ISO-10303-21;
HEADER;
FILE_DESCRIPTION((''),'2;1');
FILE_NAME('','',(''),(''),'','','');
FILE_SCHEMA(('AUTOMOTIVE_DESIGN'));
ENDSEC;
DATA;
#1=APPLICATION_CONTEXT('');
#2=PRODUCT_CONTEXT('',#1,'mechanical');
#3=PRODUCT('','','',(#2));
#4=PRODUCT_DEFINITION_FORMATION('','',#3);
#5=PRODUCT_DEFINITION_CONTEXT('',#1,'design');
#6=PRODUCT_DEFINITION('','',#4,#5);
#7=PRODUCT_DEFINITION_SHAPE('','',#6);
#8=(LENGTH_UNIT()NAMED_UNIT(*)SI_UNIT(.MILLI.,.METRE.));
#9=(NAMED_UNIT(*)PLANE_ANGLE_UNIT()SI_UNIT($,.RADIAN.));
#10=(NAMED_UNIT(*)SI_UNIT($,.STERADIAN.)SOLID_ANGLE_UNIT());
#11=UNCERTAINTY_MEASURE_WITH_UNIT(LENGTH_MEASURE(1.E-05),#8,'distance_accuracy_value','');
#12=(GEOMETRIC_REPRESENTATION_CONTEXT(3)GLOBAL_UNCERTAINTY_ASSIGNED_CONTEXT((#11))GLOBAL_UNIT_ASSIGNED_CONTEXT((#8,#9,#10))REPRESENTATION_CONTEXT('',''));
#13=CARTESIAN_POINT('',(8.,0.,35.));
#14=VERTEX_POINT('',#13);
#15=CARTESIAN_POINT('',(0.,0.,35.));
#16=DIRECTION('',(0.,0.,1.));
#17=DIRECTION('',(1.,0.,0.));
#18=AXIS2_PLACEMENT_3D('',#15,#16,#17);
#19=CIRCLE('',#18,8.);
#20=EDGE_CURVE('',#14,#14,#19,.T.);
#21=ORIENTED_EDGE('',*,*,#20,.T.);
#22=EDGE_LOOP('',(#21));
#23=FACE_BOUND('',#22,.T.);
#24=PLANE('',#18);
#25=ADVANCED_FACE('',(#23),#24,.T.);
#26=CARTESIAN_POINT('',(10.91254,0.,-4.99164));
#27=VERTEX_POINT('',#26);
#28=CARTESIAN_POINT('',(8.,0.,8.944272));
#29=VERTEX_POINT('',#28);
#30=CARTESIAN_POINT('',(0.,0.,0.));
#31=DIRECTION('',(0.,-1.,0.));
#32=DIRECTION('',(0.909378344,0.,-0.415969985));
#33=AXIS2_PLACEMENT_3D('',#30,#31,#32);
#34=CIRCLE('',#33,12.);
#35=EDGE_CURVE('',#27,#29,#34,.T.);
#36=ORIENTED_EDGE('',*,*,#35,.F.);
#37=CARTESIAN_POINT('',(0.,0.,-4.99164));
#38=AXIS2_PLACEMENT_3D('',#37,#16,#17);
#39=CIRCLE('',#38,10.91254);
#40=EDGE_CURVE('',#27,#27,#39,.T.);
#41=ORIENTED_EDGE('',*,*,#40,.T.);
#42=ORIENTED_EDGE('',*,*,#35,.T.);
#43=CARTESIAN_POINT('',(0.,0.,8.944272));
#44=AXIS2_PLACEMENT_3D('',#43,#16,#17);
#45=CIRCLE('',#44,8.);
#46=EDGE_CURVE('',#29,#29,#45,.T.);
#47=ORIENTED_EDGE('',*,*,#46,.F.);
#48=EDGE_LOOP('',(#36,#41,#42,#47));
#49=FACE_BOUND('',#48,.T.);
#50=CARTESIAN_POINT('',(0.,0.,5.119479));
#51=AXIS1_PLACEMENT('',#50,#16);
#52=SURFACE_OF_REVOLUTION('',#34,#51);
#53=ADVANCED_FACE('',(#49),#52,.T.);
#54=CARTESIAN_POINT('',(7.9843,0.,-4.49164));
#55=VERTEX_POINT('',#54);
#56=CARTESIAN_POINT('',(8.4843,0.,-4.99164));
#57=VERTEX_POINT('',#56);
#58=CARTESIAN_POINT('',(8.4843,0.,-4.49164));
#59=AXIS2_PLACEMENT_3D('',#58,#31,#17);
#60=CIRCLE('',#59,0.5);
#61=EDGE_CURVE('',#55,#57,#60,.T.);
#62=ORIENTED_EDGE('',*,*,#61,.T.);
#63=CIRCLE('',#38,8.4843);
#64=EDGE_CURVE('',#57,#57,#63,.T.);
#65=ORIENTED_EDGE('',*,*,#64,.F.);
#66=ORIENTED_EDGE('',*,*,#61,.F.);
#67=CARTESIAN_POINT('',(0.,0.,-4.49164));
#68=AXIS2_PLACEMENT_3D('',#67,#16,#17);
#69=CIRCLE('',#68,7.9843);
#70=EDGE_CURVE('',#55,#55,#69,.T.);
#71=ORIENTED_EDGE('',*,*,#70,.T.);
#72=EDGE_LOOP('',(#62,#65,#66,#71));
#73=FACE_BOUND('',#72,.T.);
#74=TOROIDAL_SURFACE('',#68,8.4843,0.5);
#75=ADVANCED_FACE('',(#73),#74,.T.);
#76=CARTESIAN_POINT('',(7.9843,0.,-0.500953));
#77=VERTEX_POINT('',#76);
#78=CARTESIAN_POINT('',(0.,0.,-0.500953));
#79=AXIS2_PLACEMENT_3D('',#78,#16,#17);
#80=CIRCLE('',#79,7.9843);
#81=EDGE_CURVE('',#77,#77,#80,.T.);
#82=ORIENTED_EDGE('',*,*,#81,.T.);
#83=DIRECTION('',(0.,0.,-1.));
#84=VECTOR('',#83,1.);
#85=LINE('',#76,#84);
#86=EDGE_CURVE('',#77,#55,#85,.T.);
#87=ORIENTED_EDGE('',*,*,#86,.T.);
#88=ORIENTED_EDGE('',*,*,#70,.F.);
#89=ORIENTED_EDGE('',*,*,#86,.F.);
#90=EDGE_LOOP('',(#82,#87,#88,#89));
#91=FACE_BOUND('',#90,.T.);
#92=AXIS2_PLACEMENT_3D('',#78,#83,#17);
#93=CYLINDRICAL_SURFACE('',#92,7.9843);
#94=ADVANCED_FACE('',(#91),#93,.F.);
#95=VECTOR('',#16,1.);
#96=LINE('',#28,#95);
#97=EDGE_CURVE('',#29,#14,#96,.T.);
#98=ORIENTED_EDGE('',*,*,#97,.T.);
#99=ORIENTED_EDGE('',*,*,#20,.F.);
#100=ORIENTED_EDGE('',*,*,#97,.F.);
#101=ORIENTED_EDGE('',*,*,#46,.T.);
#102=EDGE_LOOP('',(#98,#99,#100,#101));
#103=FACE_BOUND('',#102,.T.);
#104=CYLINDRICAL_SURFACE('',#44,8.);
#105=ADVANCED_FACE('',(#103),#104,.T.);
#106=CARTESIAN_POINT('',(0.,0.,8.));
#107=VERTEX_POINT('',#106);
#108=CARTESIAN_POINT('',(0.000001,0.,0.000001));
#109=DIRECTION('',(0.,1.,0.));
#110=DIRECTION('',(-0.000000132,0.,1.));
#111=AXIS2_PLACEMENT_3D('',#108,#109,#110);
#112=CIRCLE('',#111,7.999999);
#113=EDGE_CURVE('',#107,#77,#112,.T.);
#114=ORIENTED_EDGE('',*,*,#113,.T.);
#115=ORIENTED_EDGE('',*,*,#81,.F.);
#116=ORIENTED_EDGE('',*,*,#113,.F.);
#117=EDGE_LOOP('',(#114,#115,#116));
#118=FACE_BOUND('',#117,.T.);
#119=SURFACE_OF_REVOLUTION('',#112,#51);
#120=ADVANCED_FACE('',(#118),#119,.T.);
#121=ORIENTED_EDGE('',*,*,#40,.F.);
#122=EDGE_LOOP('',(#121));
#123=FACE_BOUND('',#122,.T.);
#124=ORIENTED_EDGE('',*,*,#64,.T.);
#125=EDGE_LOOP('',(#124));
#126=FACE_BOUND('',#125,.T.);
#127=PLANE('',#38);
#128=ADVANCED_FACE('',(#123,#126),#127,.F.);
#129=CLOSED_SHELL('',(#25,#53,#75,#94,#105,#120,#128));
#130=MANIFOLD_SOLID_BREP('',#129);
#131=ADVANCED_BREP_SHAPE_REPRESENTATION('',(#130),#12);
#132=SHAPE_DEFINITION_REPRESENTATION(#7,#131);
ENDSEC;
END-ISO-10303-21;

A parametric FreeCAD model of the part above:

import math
import FreeCAD as App
import Part
import Sketcher
Q = App.Units.Quantity


def edges_at(feature, points):
    """Names of the edges that pass closest to the given points."""
    edges = feature.Shape.Edges
    near = lambda p: min(range(len(edges)), key=lambda i: edges[i].distToShape(Part.Vertex(*p))[0])
    return sorted({f"Edge{near(p) + 1}" for p in points})

doc = App.newDocument("Part")
body = doc.addObject("PartDesign::Body", "Body")

# Sketch on XZ plane
sketch1 = body.newObject("Sketcher::SketchObject", "Sketch")
sketch1.AttachmentSupport = (doc.getObject("XZ_Plane"), [""])
sketch1.MapMode = "FlatFace"
sketch1.addGeometry(Part.ArcOfCircle(Part.Circle(App.Vector(0.000001, 0.000001, 0), App.Vector(0, 0, 1), 7.999999), math.radians(-3.590168), math.radians(90.000008)), False)
sketch1.addGeometry(Part.LineSegment(App.Vector(7.9843, -0.500953, 0), App.Vector(7.9843, -4.99164, 0)), False)
sketch1.addGeometry(Part.LineSegment(App.Vector(7.9843, -4.99164, 0), App.Vector(10.91254, -4.99164, 0)), False)
sketch1.addGeometry(Part.ArcOfCircle(Part.Circle(App.Vector(0, 0, 0), App.Vector(0, 0, 1), 12), math.radians(-24.580416), math.radians(48.189684)), False)
sketch1.addGeometry(Part.LineSegment(App.Vector(8, 8.944272, 0), App.Vector(8, 35, 0)), False)
sketch1.addGeometry(Part.LineSegment(App.Vector(8, 35, 0), App.Vector(0, 35, 0)), False)
sketch1.addGeometry(Part.LineSegment(App.Vector(0, 35, 0), App.Vector(0, 8, 0)), False)
sketch1.addConstraint(Sketcher.Constraint("Coincident", 0, 1, 1, 1))
sketch1.addConstraint(Sketcher.Constraint("Coincident", 1, 2, 2, 1))
sketch1.addConstraint(Sketcher.Constraint("Coincident", 2, 2, 3, 1))
sketch1.addConstraint(Sketcher.Constraint("Coincident", 3, 2, 4, 1))
sketch1.addConstraint(Sketcher.Constraint("Coincident", 4, 2, 5, 1))
sketch1.addConstraint(Sketcher.Constraint("Coincident", 5, 2, 6, 1))
sketch1.addConstraint(Sketcher.Constraint("Coincident", 6, 2, 0, 2))
sketch1.addConstraint(Sketcher.Constraint("Vertical", 1))
sketch1.addConstraint(Sketcher.Constraint("Horizontal", 2))
sketch1.addConstraint(Sketcher.Constraint("Vertical", 4))
sketch1.addConstraint(Sketcher.Constraint("Horizontal", 5))
sketch1.addConstraint(Sketcher.Constraint("Vertical", 6))
sketch1.addConstraint(Sketcher.Constraint("Coincident", 0, 3, -1, 1))
sketch1.addConstraint(Sketcher.Constraint("Coincident", 3, 3, -1, 1))
sketch1.addConstraint(Sketcher.Constraint("PointOnObject", 5, 2, -2))
sketch1.addConstraint(Sketcher.Constraint("Radius", 0, Q("7.999999 mm")))
sketch1.addConstraint(Sketcher.Constraint("Radius", 3, Q("12 mm")))
sketch1.addConstraint(Sketcher.Constraint("DistanceX", 5, 2, 5, 1, Q("8 mm")))
sketch1.addConstraint(Sketcher.Constraint("DistanceY", 6, 2, 6, 1, Q("27 mm")))
sketch1.addConstraint(Sketcher.Constraint("DistanceX", 2, 1, 2, 2, Q("2.92824 mm")))
sketch1.addConstraint(Sketcher.Constraint("DistanceX", -1, 1, 0, 1, Q("7.9843 mm")))
revolution = body.newObject("PartDesign::Revolution", "Revolution")
revolution.Profile = sketch1
revolution.ReferenceAxis = (sketch1, ["V_Axis"])
revolution.Angle = 360
doc.recompute()

fillet = body.newObject("PartDesign::Fillet", "Fillet")
fillet.Base = (revolution, edges_at(revolution, [(-7.984, 0, -4.992)]))
fillet.Radius = 0.5

doc.recompute()
